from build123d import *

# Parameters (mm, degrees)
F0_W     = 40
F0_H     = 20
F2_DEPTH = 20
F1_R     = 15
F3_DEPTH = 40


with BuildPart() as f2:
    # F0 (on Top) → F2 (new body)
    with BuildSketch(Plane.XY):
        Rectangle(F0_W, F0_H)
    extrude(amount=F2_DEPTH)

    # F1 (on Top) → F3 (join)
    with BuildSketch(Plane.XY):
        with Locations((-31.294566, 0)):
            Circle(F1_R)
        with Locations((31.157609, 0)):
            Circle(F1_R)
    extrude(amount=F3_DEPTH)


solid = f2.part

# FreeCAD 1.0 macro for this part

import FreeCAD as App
import Part
import Sketcher
from FreeCAD import Vector
Q = App.Units.Quantity


def add_polygon(sketch, points):
    """Adds a closed chain of lines whose ends are joined by coincident constraints."""
    first, n = sketch.GeometryCount, len(points)
    for a, b in zip(points, points[1:] + points[:1]):
        sketch.addGeometry(Part.LineSegment(App.Vector(*a, 0), App.Vector(*b, 0)), False)
    for i in range(n):
        sketch.addConstraint(Sketcher.Constraint("Coincident", first + i, 2, first + (i + 1) % n, 1))

doc = App.newDocument("Part")
body = doc.addObject("PartDesign::Body", "Body")

sketch1 = body.newObject("Sketcher::SketchObject", "Sketch")
sketch1.AttachmentSupport = (doc.getObject("XY_Plane"), [""])
sketch1.MapMode = "FlatFace"
add_polygon(sketch1, [(-20, 10), (-20, -10), (20, -10), (20, 10)])
sketch1.addConstraint([
    Sketcher.Constraint("Vertical", 0),
    Sketcher.Constraint("Horizontal", 1),
    Sketcher.Constraint("Vertical", 2),
    Sketcher.Constraint("Horizontal", 3),
    Sketcher.Constraint("Symmetric", 0, 2, 2, 2, -1, 1),
    Sketcher.Constraint("DistanceX", 1, 1, 1, 2, Q("40 mm")),
    Sketcher.Constraint("DistanceY", 0, 2, 0, 1, Q("20 mm")),
])
pad1 = body.newObject("PartDesign::Pad", "Pad")
pad1.Profile = sketch1
pad1.Length = 20

sketch2 = body.newObject("Sketcher::SketchObject", "Sketch001")
sketch2.AttachmentSupport = (doc.getObject("XY_Plane"), [""])
sketch2.MapMode = "FlatFace"
sketch2.addGeometry([
    Part.Circle(Vector(-31, 0, 0), Vector(0, 0, 1), 15),
    Part.Circle(Vector(31, 0, 0), Vector(0, 0, 1), 15),
], False)
sketch2.addConstraint([
    Sketcher.Constraint("Equal", 0, 1),
    Sketcher.Constraint("PointOnObject", 0, 3, -1),
    Sketcher.Constraint("PointOnObject", 1, 3, -1),
    Sketcher.Constraint("Diameter", 0, Q("30 mm")),
    Sketcher.Constraint("DistanceX", -1, 1, 1, 3, Q("31.157609 mm")),
    Sketcher.Constraint("DistanceX", 0, 3, -1, 1, Q("31.294566 mm")),
])
pad2 = body.newObject("PartDesign::Pad", "Pad001")
pad2.Profile = sketch2
pad2.Length = 40

doc.recompute()
